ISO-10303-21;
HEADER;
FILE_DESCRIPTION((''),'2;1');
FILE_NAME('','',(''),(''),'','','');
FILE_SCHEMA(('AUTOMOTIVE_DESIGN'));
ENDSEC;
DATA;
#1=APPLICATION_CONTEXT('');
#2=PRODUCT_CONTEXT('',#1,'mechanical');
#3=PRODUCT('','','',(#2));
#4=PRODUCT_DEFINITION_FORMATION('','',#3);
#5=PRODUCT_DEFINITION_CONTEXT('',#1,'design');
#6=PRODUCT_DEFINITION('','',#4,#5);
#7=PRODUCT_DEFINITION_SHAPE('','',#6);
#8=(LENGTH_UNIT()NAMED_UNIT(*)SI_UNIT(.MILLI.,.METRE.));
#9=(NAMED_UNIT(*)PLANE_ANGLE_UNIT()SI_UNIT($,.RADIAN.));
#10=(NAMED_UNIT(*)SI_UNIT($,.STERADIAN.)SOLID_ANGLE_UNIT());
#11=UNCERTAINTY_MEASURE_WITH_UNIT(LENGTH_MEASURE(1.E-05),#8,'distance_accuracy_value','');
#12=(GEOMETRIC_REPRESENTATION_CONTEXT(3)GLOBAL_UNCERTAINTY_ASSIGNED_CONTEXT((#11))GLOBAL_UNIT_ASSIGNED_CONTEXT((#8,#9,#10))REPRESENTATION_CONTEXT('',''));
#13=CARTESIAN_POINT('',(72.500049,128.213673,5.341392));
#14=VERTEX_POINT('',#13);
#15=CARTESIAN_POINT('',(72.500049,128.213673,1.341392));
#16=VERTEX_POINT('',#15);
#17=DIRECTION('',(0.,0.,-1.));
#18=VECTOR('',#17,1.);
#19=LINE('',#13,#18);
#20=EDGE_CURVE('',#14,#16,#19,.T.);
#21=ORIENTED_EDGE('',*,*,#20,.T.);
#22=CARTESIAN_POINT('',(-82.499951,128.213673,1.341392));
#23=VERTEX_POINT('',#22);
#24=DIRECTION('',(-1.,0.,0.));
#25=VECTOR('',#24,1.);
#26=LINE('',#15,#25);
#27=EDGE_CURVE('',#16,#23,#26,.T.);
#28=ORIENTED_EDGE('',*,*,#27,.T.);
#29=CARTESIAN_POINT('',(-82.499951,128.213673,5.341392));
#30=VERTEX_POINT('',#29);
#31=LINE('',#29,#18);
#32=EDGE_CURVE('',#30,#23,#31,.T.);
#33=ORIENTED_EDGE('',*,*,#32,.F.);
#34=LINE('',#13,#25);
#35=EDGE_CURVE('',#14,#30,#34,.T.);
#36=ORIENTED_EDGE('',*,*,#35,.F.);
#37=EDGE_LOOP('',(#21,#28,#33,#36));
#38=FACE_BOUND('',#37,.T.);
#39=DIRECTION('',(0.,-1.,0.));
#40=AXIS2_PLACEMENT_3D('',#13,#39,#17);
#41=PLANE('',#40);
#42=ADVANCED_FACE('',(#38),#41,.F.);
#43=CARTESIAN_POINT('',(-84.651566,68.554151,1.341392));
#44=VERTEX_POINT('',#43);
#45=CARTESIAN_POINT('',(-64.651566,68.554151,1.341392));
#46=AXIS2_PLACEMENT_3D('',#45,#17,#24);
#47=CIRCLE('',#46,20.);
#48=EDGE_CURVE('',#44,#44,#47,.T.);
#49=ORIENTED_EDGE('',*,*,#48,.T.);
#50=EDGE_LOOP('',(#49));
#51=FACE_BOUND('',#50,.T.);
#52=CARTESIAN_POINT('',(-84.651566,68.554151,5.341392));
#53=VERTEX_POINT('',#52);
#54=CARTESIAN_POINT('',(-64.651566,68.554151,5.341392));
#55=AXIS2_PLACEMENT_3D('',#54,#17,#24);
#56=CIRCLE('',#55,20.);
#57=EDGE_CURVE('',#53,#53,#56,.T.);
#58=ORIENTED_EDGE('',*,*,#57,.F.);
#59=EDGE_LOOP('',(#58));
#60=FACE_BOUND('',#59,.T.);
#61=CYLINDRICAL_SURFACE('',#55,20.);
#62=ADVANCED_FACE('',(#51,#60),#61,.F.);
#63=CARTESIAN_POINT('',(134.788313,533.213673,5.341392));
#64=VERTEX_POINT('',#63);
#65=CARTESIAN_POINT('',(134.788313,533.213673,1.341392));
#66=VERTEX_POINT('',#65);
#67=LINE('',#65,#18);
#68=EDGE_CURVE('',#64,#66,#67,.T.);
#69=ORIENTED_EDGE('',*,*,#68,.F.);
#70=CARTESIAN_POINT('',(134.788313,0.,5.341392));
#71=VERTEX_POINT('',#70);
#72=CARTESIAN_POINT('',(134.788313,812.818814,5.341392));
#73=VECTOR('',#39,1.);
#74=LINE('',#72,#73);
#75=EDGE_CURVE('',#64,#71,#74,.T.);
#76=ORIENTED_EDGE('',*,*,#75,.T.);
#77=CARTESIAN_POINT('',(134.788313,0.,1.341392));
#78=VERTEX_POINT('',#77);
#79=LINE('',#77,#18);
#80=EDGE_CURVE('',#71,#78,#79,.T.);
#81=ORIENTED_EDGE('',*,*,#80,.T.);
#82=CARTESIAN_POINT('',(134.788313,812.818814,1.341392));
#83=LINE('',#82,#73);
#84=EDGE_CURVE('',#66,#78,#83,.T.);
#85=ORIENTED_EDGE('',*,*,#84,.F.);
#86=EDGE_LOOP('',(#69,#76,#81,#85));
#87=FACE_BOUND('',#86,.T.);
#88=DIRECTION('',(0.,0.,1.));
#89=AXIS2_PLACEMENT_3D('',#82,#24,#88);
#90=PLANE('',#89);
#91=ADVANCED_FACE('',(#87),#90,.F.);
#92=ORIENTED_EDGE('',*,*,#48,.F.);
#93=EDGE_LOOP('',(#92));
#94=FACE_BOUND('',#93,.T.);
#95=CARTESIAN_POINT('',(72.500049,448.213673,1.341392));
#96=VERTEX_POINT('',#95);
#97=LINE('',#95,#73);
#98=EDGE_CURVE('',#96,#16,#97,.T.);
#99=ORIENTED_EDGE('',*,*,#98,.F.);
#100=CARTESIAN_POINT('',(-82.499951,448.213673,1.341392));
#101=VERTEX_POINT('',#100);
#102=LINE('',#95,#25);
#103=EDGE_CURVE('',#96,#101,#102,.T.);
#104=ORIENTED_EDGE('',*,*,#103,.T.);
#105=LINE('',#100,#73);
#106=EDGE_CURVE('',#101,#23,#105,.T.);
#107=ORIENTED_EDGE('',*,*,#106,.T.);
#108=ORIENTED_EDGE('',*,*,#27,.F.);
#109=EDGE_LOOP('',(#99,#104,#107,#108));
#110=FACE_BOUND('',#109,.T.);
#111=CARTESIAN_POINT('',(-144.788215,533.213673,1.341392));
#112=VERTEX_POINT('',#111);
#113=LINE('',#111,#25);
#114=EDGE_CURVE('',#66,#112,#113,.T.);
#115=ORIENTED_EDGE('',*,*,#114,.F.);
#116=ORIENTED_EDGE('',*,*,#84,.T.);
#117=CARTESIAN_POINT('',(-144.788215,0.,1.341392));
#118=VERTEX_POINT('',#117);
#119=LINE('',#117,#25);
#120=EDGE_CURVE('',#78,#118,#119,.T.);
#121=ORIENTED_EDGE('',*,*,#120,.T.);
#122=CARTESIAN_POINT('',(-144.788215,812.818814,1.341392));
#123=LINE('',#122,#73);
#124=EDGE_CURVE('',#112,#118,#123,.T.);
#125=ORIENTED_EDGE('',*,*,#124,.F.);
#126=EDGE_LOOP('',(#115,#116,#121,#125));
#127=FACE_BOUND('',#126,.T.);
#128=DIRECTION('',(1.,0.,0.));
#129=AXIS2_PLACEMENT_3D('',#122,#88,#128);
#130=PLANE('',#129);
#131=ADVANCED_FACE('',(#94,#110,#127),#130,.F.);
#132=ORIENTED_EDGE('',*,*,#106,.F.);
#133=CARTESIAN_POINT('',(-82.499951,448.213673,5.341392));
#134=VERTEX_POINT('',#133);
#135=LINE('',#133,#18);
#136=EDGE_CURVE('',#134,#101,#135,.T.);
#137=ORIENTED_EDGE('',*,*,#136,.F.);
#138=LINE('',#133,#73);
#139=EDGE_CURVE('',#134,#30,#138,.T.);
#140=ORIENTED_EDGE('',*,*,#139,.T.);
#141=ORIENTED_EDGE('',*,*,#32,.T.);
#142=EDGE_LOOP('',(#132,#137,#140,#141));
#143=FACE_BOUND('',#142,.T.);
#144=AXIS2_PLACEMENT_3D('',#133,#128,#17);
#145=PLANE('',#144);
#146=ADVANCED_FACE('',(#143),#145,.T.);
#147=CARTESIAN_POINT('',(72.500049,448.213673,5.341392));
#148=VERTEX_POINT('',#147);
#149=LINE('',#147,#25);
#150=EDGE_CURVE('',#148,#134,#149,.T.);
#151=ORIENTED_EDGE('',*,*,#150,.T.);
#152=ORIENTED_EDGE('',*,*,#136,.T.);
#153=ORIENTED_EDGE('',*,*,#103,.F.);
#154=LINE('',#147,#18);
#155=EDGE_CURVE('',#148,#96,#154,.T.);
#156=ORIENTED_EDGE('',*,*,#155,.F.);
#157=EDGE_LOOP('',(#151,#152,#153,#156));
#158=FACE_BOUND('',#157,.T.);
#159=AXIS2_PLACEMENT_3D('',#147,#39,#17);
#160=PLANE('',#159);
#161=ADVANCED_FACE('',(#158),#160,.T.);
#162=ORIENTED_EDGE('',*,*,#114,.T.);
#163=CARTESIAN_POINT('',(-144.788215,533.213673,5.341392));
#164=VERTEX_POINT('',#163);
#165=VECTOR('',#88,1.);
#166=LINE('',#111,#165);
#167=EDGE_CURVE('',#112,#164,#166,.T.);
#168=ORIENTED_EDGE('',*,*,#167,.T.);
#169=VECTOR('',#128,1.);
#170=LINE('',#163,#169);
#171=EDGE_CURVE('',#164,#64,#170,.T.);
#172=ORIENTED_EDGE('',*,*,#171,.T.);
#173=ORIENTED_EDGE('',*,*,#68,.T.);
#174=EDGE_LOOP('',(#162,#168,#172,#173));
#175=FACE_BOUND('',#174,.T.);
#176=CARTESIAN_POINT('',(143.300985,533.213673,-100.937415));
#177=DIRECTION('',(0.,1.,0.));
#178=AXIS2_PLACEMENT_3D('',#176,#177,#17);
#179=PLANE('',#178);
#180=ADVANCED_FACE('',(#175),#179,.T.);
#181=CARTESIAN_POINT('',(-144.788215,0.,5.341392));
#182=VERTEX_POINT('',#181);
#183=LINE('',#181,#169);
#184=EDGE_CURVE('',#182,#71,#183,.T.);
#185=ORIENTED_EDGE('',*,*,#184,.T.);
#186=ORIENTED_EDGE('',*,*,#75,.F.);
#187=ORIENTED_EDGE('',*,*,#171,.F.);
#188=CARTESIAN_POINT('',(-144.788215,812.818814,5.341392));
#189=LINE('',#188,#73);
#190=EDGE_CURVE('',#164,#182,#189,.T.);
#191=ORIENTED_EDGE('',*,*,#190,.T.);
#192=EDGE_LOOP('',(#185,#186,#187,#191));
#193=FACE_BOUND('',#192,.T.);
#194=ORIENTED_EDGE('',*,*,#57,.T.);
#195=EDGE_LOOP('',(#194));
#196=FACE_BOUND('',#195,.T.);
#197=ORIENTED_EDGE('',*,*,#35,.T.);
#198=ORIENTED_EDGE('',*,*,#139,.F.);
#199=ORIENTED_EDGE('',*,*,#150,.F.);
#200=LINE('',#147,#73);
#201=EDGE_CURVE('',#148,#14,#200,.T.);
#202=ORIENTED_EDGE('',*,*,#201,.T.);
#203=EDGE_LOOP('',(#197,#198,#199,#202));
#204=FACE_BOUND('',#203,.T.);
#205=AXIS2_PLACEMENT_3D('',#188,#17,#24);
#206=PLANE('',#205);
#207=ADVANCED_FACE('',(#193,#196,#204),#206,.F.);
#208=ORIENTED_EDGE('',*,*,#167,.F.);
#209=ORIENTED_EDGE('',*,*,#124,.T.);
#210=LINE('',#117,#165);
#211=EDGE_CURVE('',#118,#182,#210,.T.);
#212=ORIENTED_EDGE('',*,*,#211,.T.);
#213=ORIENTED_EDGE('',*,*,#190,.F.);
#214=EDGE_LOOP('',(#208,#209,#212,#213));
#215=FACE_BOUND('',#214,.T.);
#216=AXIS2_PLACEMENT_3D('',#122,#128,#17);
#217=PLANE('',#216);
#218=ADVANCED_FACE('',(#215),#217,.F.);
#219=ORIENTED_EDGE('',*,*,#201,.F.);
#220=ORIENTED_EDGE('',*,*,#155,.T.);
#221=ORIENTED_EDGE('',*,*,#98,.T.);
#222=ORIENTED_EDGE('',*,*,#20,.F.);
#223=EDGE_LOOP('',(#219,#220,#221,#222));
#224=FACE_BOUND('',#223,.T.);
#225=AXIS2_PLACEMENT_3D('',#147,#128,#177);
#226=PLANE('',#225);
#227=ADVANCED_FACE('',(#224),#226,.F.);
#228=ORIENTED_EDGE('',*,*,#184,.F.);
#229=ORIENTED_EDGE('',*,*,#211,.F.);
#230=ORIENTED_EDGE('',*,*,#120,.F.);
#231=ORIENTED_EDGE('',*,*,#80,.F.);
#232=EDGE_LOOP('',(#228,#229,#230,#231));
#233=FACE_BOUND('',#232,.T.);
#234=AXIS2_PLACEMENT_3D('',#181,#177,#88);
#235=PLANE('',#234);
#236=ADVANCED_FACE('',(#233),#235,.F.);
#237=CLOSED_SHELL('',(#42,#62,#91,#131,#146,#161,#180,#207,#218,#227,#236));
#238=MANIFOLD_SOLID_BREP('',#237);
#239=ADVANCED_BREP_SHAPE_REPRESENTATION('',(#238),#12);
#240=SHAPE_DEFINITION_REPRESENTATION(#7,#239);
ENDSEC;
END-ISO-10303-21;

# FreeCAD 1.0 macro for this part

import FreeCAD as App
import Part
import Sketcher
Q = App.Units.Quantity

doc = App.newDocument("Part")
body = doc.addObject("PartDesign::Body", "Body")

# Sketch on XZ plane
sketch1 = body.newObject("Sketcher::SketchObject", "Sketch")
sketch1.AttachmentSupport = (doc.getObject("XZ_Plane"), [""])
sketch1.MapMode = "FlatFace"
sketch1.addGeometry([
    Part.LineSegment(App.Vector(-144.8, 1.3, 0), App.Vector(-144.8, 5.3, 0)),
    Part.LineSegment(App.Vector(-144.8, 5.3, 0), App.Vector(134.8, 5.3, 0)),
    Part.LineSegment(App.Vector(134.8, 5.3, 0), App.Vector(134.8, 1.3, 0)),
    Part.LineSegment(App.Vector(134.8, 1.3, 0), App.Vector(-144.8, 1.3, 0)),
], False)
sketch1.addConstraint([
    Sketcher.Constraint("Coincident", 0, 2, 1, 1),
    Sketcher.Constraint("Coincident", 1, 2, 2, 1),
    Sketcher.Constraint("Coincident", 2, 2, 3, 1),
    Sketcher.Constraint("Coincident", 3, 2, 0, 1),
    Sketcher.Constraint("Vertical", 0),
    Sketcher.Constraint("Horizontal", 1),
    Sketcher.Constraint("Vertical", 2),
    Sketcher.Constraint("Horizontal", 3),
    Sketcher.Constraint("DistanceY", 0, 1, 0, 2, Q("4 mm")),
    Sketcher.Constraint("DistanceX", 1, 1, 1, 2, Q("279.576528 mm")),
    Sketcher.Constraint("DistanceX", 0, 2, -1, 1, Q("144.788215 mm")),
    Sketcher.Constraint("DistanceY", -1, 1, 0, 2, Q("5.341392 mm")),
])
pad1 = body.newObject("PartDesign::Pad", "Pad")
pad1.Profile = sketch1
pad1.Length = 533.213673
pad1.Reversed = True

# Sketch on XY plane
sketch2 = body.newObject("Sketcher::SketchObject", "Sketch001")
sketch2.AttachmentSupport = (doc.getObject("XY_Plane"), [""])
sketch2.MapMode = "FlatFace"
sketch2.AttachmentOffset = App.Placement(App.Vector(0, 0, 1.341392), App.Rotation())
sketch2.addGeometry(Part.Circle(App.Vector(-65, 69, 0), App.Vector(0, 0, 1), 20), False)
sketch2.addConstraint([
    Sketcher.Constraint("Diameter", 0, Q("40 mm")),
    Sketcher.Constraint("DistanceY", -1, 1, 0, 3, Q("68.554151 mm")),
    Sketcher.Constraint("DistanceX", 0, 3, -1, 1, Q("64.651566 mm")),
])
pocket1 = body.newObject("PartDesign::Pocket", "Pocket")
pocket1.Profile = sketch2
pocket1.Type = "ThroughAll"
pocket1.Reversed = True

# Sketch on XY plane
sketch3 = body.newObject("Sketcher::SketchObject", "Sketch002")
sketch3.AttachmentSupport = (doc.getObject("XY_Plane"), [""])
sketch3.MapMode = "FlatFace"
sketch3.AttachmentOffset = App.Placement(App.Vector(0, 0, 1.341392), App.Rotation())
sketch3.addGeometry([
    Part.LineSegment(App.Vector(73, 448, 0), App.Vector(73, 128, 0)),
    Part.LineSegment(App.Vector(73, 128, 0), App.Vector(-82, 128, 0)),
    Part.LineSegment(App.Vector(-82, 128, 0), App.Vector(-82, 448, 0)),
    Part.LineSegment(App.Vector(-82, 448, 0), App.Vector(73, 448, 0)),
], False)
sketch3.addConstraint([
    Sketcher.Constraint("Coincident", 0, 2, 1, 1),
    Sketcher.Constraint("Coincident", 1, 2, 2, 1),
    Sketcher.Constraint("Coincident", 2, 2, 3, 1),
    Sketcher.Constraint("Coincident", 3, 2, 0, 1),
    Sketcher.Constraint("Vertical", 0),
    Sketcher.Constraint("Horizontal", 1),
    Sketcher.Constraint("Vertical", 2),
    Sketcher.Constraint("Horizontal", 3),
    Sketcher.Constraint("DistanceX", 1, 2, 1, 1, Q("155 mm")),
    Sketcher.Constraint("DistanceY", 0, 2, 0, 1, Q("320 mm")),
    Sketcher.Constraint("DistanceX", -1, 1, 0, 2, Q("72.500049 mm")),
    Sketcher.Constraint("DistanceY", -1, 1, 0, 2, Q("128.213673 mm")),
])
pocket2 = body.newObject("PartDesign::Pocket", "Pocket001")
pocket2.Profile = sketch3
pocket2.Type = "ThroughAll"
pocket2.Reversed = True

doc.recompute()
